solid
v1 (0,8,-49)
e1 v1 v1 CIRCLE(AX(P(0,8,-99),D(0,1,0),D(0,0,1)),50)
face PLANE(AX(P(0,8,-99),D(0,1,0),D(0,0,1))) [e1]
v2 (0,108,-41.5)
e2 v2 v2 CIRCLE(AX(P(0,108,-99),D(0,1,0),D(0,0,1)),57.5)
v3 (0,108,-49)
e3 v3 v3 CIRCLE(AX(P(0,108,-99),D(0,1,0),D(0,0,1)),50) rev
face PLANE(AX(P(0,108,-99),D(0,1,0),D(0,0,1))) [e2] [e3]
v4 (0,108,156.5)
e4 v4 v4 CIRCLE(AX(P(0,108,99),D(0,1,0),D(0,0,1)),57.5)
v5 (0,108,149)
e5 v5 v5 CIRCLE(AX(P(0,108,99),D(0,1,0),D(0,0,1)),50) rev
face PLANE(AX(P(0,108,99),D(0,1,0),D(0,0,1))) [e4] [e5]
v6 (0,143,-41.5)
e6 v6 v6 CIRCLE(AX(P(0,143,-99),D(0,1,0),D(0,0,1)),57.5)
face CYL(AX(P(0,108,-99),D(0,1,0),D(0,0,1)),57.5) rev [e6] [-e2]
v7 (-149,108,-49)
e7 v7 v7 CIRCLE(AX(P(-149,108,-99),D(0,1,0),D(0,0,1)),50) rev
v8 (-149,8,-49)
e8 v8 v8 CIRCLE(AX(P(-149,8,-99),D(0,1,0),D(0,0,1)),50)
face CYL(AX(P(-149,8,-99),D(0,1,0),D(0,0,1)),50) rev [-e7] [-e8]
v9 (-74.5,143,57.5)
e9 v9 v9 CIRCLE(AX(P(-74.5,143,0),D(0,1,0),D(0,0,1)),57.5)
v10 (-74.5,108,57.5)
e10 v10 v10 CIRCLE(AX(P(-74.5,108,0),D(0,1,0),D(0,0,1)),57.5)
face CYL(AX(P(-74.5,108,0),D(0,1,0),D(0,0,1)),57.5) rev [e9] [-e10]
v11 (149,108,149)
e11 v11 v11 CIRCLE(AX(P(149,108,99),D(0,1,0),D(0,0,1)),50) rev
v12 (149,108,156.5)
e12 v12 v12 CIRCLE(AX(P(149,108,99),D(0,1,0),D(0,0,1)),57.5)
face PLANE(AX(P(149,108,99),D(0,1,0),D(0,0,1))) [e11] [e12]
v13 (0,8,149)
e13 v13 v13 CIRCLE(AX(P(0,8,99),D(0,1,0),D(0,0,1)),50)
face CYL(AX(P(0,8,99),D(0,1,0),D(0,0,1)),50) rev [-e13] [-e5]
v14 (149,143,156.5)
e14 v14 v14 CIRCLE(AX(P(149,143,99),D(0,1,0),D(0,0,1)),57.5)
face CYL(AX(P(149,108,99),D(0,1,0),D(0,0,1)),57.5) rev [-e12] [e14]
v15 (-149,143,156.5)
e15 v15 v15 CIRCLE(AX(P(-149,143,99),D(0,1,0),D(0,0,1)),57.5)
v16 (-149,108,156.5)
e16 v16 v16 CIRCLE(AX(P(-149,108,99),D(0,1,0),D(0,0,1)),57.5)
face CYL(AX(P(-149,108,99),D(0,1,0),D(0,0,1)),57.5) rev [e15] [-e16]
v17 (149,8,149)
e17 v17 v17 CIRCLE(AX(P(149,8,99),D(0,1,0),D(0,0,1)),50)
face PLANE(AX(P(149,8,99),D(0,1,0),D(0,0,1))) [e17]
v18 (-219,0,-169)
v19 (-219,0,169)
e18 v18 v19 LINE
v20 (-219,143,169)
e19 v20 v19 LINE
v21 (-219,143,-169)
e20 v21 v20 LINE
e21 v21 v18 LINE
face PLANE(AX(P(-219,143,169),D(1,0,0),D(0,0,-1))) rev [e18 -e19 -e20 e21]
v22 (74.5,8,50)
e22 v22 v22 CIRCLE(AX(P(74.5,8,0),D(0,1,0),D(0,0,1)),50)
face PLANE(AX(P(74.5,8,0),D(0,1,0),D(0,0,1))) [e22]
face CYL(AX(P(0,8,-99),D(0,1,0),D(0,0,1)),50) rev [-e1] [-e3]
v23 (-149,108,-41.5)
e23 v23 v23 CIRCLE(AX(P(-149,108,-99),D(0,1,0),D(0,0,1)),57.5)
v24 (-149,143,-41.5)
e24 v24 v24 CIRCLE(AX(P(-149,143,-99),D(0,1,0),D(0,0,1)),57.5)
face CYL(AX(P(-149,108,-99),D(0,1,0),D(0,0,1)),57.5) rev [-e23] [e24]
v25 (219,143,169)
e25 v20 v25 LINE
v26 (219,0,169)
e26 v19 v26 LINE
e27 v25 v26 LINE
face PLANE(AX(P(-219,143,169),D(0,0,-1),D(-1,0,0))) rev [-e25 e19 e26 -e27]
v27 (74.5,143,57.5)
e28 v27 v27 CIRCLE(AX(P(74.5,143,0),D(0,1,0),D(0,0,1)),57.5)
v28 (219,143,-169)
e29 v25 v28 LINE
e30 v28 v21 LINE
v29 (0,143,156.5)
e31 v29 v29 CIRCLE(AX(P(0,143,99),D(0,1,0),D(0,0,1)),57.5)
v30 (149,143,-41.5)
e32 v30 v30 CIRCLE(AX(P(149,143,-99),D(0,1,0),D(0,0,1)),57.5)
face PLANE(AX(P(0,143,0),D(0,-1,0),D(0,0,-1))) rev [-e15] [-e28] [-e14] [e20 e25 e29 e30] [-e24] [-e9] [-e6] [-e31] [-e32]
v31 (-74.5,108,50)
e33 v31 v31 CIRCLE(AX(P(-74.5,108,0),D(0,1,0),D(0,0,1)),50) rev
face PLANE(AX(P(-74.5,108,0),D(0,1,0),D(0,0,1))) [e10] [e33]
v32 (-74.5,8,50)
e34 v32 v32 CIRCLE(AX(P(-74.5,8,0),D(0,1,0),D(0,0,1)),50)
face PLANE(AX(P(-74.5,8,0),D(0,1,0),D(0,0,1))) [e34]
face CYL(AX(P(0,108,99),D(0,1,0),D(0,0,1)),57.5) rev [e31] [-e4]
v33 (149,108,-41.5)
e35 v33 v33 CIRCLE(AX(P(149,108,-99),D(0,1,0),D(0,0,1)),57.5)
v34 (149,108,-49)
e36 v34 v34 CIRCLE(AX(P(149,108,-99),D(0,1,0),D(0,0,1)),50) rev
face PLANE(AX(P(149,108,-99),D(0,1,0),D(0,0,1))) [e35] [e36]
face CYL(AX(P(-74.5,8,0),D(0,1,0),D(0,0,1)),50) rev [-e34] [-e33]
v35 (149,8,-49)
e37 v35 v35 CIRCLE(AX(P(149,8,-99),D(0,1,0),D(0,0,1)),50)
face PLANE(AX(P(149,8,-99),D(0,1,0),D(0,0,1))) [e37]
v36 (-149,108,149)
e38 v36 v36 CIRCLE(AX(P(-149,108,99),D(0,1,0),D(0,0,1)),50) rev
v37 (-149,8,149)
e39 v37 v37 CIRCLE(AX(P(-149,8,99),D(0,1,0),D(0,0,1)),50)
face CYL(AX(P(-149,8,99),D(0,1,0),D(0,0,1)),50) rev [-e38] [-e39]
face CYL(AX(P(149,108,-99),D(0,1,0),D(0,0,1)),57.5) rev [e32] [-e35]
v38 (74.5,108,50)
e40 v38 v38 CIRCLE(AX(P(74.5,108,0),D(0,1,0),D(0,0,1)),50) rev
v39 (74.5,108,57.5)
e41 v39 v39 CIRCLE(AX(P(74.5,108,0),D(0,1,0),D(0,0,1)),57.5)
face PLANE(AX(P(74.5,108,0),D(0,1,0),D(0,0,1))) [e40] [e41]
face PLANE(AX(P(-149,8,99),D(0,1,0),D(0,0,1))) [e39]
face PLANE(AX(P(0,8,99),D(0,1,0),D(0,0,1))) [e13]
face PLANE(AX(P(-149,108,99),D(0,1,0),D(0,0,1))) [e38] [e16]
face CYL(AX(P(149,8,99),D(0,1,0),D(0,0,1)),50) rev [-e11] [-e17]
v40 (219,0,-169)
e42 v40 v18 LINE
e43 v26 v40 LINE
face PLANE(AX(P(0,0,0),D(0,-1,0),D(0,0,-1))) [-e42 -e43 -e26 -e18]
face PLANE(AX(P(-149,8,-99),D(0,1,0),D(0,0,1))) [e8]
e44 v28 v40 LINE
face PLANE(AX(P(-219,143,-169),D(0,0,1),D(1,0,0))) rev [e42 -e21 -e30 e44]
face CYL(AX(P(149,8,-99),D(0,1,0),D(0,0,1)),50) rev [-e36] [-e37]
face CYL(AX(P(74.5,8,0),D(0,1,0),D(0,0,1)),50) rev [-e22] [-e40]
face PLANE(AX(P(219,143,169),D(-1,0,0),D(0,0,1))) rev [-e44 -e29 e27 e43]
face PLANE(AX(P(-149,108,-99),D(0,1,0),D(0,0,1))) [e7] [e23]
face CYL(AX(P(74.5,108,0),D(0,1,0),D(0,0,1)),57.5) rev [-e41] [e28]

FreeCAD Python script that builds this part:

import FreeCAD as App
import Part
import Sketcher

V = App.Vector

doc = App.newDocument("Part")
params = doc.addObject("Spreadsheet::Sheet", "Params")
for row, (alias, value) in enumerate([
    ("sketch1_width", "438 mm"),
    ("sketch1_height", "338 mm"),
    ("pad1_length", "143 mm"),
    ("sketch2_diameter", "100 mm"),
    ("pocket1_length", "135 mm"),
    ("sketch3_diameter", "115 mm"),
    ("pocket2_length", "35 mm"),
], start=1):
    params.set(f"A{row}", alias)
    params.set(f"B{row}", "=" + value)
    params.setAlias(f"B{row}", alias)

body = doc.addObject("PartDesign::Body", "Body")

# Sketch on XZ plane
sketch1 = body.newObject("Sketcher::SketchObject", "Sketch")
sketch1.AttachmentSupport = (doc.getObject("XZ_Plane"), [""])
sketch1.MapMode = "FlatFace"
sketch1.addGeometry(Part.LineSegment(V(-219, -169, 0), V(-219, 169, 0)), False)
sketch1.addGeometry(Part.LineSegment(V(-219, 169, 0), V(219, 169, 0)), False)
sketch1.addGeometry(Part.LineSegment(V(219, 169, 0), V(219, -169, 0)), False)
sketch1.addGeometry(Part.LineSegment(V(219, -169, 0), V(-219, -169, 0)), False)
sketch1.addConstraint(Sketcher.Constraint("Coincident", 0, 2, 1, 1))
sketch1.addConstraint(Sketcher.Constraint("Coincident", 1, 2, 2, 1))
sketch1.addConstraint(Sketcher.Constraint("Coincident", 2, 2, 3, 1))
sketch1.addConstraint(Sketcher.Constraint("Coincident", 3, 2, 0, 1))
sketch1.addConstraint(Sketcher.Constraint("Vertical", 0))
sketch1.addConstraint(Sketcher.Constraint("Horizontal", 1))
sketch1.addConstraint(Sketcher.Constraint("Vertical", 2))
sketch1.addConstraint(Sketcher.Constraint("Horizontal", 3))
sketch1.addConstraint(Sketcher.Constraint("Symmetric", 0, 2, 2, 2, -1, 1))
sketch1.addConstraint(Sketcher.Constraint("DistanceX", 1, 1, 1, 2, 438.0))
sketch1.addConstraint(Sketcher.Constraint("DistanceY", 0, 1, 0, 2, 338.0))
sketch1.setExpression("Constraints[9]", "Params.sketch1_width")
sketch1.setExpression("Constraints[10]", "Params.sketch1_height")
pad1 = body.newObject("PartDesign::Pad", "Pad")
pad1.Profile = sketch1
pad1.setExpression("Length", "Params.pad1_length")
pad1.Reversed = True

# Sketch on XZ plane
sketch2 = body.newObject("Sketcher::SketchObject", "Sketch001")
sketch2.AttachmentSupport = (doc.getObject("XZ_Plane"), [""])
sketch2.MapMode = "FlatFace"
sketch2.AttachmentOffset = App.Placement(V(0, 0, -143), App.Rotation())
sketch2.addGeometry(Part.Circle(V(-149, -99, 0), V(0, 0, 1), 50), False)
sketch2.addGeometry(Part.Circle(V(0, -99, 0), V(0, 0, 1), 50), False)
sketch2.addGeometry(Part.Circle(V(0, 99, 0), V(0, 0, 1), 50), False)
sketch2.addGeometry(Part.Circle(V(-149, 99, 0), V(0, 0, 1), 50), False)
sketch2.addGeometry(Part.Circle(V(-74, 0, 0), V(0, 0, 1), 50), False)
sketch2.addGeometry(Part.Circle(V(149, -99, 0), V(0, 0, 1), 50), False)
sketch2.addGeometry(Part.Circle(V(149, 99, 0), V(0, 0, 1), 50), False)
sketch2.addGeometry(Part.Circle(V(74, 0, 0), V(0, 0, 1), 50), False)
sketch2.addConstraint(Sketcher.Constraint("Equal", 0, 1))
sketch2.addConstraint(Sketcher.Constraint("Equal", 1, 2))
sketch2.addConstraint(Sketcher.Constraint("Equal", 2, 3))
sketch2.addConstraint(Sketcher.Constraint("Equal", 3, 4))
sketch2.addConstraint(Sketcher.Constraint("Equal", 4, 5))
sketch2.addConstraint(Sketcher.Constraint("Equal", 5, 6))
sketch2.addConstraint(Sketcher.Constraint("Equal", 6, 7))
sketch2.addConstraint(Sketcher.Constraint("Symmetric", 1, 3, 2, 3, -1, 1))
sketch2.addConstraint(Sketcher.Constraint("Symmetric", 3, 3, 5, 3, -1, 1))
sketch2.addConstraint(Sketcher.Constraint("Symmetric", 0, 3, 6, 3, -1, 1))
sketch2.addConstraint(Sketcher.Constraint("Symmetric", 4, 3, 7, 3, -1, 1))
sketch2.addConstraint(Sketcher.Constraint("Symmetric", 0, 3, 5, 3, -2))
sketch2.addConstraint(Sketcher.Constraint("PointOnObject", 1, 3, -2))
sketch2.addConstraint(Sketcher.Constraint("PointOnObject", 4, 3, -1))
sketch2.addConstraint(Sketcher.Constraint("Horizontal", 0, 3, 1, 3))
sketch2.addConstraint(Sketcher.Constraint("Diameter", 0, 100.0))
sketch2.addConstraint(Sketcher.Constraint("DistanceX", 0, 3, -1, 1, 149.0))
sketch2.addConstraint(Sketcher.Constraint("DistanceY", 0, 3, -1, 1, 99.0))
sketch2.addConstraint(Sketcher.Constraint("DistanceX", 4, 3, 7, 3, 149.0))
sketch2.setExpression("Constraints[15]", "Params.sketch2_diameter")
pocket1 = body.newObject("PartDesign::Pocket", "Pocket")
pocket1.Profile = sketch2
pocket1.setExpression("Length", "Params.pocket1_length")
pocket1.Reversed = True

# Sketch on XZ plane
sketch3 = body.newObject("Sketcher::SketchObject", "Sketch002")
sketch3.AttachmentSupport = (doc.getObject("XZ_Plane"), [""])
sketch3.MapMode = "FlatFace"
sketch3.AttachmentOffset = App.Placement(V(0, 0, -143), App.Rotation())
sketch3.addGeometry(Part.Circle(V(-149, -99, 0), V(0, 0, 1), 58), False)
sketch3.addGeometry(Part.Circle(V(0, -99, 0), V(0, 0, 1), 58), False)
sketch3.addGeometry(Part.Circle(V(0, 99, 0), V(0, 0, 1), 58), False)
sketch3.addGeometry(Part.Circle(V(-149, 99, 0), V(0, 0, 1), 58), False)
sketch3.addGeometry(Part.Circle(V(-74, 0, 0), V(0, 0, 1), 58), False)
sketch3.addGeometry(Part.Circle(V(149, -99, 0), V(0, 0, 1), 58), False)
sketch3.addGeometry(Part.Circle(V(149, 99, 0), V(0, 0, 1), 58), False)
sketch3.addGeometry(Part.Circle(V(74, 0, 0), V(0, 0, 1), 58), False)
sketch3.addConstraint(Sketcher.Constraint("Equal", 0, 1))
sketch3.addConstraint(Sketcher.Constraint("Equal", 1, 2))
sketch3.addConstraint(Sketcher.Constraint("Equal", 2, 3))
sketch3.addConstraint(Sketcher.Constraint("Equal", 3, 4))
sketch3.addConstraint(Sketcher.Constraint("Equal", 4, 5))
sketch3.addConstraint(Sketcher.Constraint("Equal", 5, 6))
sketch3.addConstraint(Sketcher.Constraint("Equal", 6, 7))
sketch3.addConstraint(Sketcher.Constraint("Symmetric", 1, 3, 2, 3, -1, 1))
sketch3.addConstraint(Sketcher.Constraint("Symmetric", 3, 3, 5, 3, -1, 1))
sketch3.addConstraint(Sketcher.Constraint("Symmetric", 0, 3, 6, 3, -1, 1))
sketch3.addConstraint(Sketcher.Constraint("Symmetric", 4, 3, 7, 3, -1, 1))
sketch3.addConstraint(Sketcher.Constraint("Symmetric", 0, 3, 5, 3, -2))
sketch3.addConstraint(Sketcher.Constraint("PointOnObject", 1, 3, -2))
sketch3.addConstraint(Sketcher.Constraint("PointOnObject", 4, 3, -1))
sketch3.addConstraint(Sketcher.Constraint("Horizontal", 0, 3, 1, 3))
sketch3.addConstraint(Sketcher.Constraint("Diameter", 0, 115.0))
sketch3.addConstraint(Sketcher.Constraint("DistanceX", 0, 3, -1, 1, 149.0))
sketch3.addConstraint(Sketcher.Constraint("DistanceY", 0, 3, -1, 1, 99.0))
sketch3.addConstraint(Sketcher.Constraint("DistanceX", 4, 3, 7, 3, 149.0))
sketch3.setExpression("Constraints[15]", "Params.sketch3_diameter")
pocket2 = body.newObject("PartDesign::Pocket", "Pocket001")
pocket2.Profile = sketch3
pocket2.setExpression("Length", "Params.pocket2_length")
pocket2.Reversed = True

doc.recompute()
